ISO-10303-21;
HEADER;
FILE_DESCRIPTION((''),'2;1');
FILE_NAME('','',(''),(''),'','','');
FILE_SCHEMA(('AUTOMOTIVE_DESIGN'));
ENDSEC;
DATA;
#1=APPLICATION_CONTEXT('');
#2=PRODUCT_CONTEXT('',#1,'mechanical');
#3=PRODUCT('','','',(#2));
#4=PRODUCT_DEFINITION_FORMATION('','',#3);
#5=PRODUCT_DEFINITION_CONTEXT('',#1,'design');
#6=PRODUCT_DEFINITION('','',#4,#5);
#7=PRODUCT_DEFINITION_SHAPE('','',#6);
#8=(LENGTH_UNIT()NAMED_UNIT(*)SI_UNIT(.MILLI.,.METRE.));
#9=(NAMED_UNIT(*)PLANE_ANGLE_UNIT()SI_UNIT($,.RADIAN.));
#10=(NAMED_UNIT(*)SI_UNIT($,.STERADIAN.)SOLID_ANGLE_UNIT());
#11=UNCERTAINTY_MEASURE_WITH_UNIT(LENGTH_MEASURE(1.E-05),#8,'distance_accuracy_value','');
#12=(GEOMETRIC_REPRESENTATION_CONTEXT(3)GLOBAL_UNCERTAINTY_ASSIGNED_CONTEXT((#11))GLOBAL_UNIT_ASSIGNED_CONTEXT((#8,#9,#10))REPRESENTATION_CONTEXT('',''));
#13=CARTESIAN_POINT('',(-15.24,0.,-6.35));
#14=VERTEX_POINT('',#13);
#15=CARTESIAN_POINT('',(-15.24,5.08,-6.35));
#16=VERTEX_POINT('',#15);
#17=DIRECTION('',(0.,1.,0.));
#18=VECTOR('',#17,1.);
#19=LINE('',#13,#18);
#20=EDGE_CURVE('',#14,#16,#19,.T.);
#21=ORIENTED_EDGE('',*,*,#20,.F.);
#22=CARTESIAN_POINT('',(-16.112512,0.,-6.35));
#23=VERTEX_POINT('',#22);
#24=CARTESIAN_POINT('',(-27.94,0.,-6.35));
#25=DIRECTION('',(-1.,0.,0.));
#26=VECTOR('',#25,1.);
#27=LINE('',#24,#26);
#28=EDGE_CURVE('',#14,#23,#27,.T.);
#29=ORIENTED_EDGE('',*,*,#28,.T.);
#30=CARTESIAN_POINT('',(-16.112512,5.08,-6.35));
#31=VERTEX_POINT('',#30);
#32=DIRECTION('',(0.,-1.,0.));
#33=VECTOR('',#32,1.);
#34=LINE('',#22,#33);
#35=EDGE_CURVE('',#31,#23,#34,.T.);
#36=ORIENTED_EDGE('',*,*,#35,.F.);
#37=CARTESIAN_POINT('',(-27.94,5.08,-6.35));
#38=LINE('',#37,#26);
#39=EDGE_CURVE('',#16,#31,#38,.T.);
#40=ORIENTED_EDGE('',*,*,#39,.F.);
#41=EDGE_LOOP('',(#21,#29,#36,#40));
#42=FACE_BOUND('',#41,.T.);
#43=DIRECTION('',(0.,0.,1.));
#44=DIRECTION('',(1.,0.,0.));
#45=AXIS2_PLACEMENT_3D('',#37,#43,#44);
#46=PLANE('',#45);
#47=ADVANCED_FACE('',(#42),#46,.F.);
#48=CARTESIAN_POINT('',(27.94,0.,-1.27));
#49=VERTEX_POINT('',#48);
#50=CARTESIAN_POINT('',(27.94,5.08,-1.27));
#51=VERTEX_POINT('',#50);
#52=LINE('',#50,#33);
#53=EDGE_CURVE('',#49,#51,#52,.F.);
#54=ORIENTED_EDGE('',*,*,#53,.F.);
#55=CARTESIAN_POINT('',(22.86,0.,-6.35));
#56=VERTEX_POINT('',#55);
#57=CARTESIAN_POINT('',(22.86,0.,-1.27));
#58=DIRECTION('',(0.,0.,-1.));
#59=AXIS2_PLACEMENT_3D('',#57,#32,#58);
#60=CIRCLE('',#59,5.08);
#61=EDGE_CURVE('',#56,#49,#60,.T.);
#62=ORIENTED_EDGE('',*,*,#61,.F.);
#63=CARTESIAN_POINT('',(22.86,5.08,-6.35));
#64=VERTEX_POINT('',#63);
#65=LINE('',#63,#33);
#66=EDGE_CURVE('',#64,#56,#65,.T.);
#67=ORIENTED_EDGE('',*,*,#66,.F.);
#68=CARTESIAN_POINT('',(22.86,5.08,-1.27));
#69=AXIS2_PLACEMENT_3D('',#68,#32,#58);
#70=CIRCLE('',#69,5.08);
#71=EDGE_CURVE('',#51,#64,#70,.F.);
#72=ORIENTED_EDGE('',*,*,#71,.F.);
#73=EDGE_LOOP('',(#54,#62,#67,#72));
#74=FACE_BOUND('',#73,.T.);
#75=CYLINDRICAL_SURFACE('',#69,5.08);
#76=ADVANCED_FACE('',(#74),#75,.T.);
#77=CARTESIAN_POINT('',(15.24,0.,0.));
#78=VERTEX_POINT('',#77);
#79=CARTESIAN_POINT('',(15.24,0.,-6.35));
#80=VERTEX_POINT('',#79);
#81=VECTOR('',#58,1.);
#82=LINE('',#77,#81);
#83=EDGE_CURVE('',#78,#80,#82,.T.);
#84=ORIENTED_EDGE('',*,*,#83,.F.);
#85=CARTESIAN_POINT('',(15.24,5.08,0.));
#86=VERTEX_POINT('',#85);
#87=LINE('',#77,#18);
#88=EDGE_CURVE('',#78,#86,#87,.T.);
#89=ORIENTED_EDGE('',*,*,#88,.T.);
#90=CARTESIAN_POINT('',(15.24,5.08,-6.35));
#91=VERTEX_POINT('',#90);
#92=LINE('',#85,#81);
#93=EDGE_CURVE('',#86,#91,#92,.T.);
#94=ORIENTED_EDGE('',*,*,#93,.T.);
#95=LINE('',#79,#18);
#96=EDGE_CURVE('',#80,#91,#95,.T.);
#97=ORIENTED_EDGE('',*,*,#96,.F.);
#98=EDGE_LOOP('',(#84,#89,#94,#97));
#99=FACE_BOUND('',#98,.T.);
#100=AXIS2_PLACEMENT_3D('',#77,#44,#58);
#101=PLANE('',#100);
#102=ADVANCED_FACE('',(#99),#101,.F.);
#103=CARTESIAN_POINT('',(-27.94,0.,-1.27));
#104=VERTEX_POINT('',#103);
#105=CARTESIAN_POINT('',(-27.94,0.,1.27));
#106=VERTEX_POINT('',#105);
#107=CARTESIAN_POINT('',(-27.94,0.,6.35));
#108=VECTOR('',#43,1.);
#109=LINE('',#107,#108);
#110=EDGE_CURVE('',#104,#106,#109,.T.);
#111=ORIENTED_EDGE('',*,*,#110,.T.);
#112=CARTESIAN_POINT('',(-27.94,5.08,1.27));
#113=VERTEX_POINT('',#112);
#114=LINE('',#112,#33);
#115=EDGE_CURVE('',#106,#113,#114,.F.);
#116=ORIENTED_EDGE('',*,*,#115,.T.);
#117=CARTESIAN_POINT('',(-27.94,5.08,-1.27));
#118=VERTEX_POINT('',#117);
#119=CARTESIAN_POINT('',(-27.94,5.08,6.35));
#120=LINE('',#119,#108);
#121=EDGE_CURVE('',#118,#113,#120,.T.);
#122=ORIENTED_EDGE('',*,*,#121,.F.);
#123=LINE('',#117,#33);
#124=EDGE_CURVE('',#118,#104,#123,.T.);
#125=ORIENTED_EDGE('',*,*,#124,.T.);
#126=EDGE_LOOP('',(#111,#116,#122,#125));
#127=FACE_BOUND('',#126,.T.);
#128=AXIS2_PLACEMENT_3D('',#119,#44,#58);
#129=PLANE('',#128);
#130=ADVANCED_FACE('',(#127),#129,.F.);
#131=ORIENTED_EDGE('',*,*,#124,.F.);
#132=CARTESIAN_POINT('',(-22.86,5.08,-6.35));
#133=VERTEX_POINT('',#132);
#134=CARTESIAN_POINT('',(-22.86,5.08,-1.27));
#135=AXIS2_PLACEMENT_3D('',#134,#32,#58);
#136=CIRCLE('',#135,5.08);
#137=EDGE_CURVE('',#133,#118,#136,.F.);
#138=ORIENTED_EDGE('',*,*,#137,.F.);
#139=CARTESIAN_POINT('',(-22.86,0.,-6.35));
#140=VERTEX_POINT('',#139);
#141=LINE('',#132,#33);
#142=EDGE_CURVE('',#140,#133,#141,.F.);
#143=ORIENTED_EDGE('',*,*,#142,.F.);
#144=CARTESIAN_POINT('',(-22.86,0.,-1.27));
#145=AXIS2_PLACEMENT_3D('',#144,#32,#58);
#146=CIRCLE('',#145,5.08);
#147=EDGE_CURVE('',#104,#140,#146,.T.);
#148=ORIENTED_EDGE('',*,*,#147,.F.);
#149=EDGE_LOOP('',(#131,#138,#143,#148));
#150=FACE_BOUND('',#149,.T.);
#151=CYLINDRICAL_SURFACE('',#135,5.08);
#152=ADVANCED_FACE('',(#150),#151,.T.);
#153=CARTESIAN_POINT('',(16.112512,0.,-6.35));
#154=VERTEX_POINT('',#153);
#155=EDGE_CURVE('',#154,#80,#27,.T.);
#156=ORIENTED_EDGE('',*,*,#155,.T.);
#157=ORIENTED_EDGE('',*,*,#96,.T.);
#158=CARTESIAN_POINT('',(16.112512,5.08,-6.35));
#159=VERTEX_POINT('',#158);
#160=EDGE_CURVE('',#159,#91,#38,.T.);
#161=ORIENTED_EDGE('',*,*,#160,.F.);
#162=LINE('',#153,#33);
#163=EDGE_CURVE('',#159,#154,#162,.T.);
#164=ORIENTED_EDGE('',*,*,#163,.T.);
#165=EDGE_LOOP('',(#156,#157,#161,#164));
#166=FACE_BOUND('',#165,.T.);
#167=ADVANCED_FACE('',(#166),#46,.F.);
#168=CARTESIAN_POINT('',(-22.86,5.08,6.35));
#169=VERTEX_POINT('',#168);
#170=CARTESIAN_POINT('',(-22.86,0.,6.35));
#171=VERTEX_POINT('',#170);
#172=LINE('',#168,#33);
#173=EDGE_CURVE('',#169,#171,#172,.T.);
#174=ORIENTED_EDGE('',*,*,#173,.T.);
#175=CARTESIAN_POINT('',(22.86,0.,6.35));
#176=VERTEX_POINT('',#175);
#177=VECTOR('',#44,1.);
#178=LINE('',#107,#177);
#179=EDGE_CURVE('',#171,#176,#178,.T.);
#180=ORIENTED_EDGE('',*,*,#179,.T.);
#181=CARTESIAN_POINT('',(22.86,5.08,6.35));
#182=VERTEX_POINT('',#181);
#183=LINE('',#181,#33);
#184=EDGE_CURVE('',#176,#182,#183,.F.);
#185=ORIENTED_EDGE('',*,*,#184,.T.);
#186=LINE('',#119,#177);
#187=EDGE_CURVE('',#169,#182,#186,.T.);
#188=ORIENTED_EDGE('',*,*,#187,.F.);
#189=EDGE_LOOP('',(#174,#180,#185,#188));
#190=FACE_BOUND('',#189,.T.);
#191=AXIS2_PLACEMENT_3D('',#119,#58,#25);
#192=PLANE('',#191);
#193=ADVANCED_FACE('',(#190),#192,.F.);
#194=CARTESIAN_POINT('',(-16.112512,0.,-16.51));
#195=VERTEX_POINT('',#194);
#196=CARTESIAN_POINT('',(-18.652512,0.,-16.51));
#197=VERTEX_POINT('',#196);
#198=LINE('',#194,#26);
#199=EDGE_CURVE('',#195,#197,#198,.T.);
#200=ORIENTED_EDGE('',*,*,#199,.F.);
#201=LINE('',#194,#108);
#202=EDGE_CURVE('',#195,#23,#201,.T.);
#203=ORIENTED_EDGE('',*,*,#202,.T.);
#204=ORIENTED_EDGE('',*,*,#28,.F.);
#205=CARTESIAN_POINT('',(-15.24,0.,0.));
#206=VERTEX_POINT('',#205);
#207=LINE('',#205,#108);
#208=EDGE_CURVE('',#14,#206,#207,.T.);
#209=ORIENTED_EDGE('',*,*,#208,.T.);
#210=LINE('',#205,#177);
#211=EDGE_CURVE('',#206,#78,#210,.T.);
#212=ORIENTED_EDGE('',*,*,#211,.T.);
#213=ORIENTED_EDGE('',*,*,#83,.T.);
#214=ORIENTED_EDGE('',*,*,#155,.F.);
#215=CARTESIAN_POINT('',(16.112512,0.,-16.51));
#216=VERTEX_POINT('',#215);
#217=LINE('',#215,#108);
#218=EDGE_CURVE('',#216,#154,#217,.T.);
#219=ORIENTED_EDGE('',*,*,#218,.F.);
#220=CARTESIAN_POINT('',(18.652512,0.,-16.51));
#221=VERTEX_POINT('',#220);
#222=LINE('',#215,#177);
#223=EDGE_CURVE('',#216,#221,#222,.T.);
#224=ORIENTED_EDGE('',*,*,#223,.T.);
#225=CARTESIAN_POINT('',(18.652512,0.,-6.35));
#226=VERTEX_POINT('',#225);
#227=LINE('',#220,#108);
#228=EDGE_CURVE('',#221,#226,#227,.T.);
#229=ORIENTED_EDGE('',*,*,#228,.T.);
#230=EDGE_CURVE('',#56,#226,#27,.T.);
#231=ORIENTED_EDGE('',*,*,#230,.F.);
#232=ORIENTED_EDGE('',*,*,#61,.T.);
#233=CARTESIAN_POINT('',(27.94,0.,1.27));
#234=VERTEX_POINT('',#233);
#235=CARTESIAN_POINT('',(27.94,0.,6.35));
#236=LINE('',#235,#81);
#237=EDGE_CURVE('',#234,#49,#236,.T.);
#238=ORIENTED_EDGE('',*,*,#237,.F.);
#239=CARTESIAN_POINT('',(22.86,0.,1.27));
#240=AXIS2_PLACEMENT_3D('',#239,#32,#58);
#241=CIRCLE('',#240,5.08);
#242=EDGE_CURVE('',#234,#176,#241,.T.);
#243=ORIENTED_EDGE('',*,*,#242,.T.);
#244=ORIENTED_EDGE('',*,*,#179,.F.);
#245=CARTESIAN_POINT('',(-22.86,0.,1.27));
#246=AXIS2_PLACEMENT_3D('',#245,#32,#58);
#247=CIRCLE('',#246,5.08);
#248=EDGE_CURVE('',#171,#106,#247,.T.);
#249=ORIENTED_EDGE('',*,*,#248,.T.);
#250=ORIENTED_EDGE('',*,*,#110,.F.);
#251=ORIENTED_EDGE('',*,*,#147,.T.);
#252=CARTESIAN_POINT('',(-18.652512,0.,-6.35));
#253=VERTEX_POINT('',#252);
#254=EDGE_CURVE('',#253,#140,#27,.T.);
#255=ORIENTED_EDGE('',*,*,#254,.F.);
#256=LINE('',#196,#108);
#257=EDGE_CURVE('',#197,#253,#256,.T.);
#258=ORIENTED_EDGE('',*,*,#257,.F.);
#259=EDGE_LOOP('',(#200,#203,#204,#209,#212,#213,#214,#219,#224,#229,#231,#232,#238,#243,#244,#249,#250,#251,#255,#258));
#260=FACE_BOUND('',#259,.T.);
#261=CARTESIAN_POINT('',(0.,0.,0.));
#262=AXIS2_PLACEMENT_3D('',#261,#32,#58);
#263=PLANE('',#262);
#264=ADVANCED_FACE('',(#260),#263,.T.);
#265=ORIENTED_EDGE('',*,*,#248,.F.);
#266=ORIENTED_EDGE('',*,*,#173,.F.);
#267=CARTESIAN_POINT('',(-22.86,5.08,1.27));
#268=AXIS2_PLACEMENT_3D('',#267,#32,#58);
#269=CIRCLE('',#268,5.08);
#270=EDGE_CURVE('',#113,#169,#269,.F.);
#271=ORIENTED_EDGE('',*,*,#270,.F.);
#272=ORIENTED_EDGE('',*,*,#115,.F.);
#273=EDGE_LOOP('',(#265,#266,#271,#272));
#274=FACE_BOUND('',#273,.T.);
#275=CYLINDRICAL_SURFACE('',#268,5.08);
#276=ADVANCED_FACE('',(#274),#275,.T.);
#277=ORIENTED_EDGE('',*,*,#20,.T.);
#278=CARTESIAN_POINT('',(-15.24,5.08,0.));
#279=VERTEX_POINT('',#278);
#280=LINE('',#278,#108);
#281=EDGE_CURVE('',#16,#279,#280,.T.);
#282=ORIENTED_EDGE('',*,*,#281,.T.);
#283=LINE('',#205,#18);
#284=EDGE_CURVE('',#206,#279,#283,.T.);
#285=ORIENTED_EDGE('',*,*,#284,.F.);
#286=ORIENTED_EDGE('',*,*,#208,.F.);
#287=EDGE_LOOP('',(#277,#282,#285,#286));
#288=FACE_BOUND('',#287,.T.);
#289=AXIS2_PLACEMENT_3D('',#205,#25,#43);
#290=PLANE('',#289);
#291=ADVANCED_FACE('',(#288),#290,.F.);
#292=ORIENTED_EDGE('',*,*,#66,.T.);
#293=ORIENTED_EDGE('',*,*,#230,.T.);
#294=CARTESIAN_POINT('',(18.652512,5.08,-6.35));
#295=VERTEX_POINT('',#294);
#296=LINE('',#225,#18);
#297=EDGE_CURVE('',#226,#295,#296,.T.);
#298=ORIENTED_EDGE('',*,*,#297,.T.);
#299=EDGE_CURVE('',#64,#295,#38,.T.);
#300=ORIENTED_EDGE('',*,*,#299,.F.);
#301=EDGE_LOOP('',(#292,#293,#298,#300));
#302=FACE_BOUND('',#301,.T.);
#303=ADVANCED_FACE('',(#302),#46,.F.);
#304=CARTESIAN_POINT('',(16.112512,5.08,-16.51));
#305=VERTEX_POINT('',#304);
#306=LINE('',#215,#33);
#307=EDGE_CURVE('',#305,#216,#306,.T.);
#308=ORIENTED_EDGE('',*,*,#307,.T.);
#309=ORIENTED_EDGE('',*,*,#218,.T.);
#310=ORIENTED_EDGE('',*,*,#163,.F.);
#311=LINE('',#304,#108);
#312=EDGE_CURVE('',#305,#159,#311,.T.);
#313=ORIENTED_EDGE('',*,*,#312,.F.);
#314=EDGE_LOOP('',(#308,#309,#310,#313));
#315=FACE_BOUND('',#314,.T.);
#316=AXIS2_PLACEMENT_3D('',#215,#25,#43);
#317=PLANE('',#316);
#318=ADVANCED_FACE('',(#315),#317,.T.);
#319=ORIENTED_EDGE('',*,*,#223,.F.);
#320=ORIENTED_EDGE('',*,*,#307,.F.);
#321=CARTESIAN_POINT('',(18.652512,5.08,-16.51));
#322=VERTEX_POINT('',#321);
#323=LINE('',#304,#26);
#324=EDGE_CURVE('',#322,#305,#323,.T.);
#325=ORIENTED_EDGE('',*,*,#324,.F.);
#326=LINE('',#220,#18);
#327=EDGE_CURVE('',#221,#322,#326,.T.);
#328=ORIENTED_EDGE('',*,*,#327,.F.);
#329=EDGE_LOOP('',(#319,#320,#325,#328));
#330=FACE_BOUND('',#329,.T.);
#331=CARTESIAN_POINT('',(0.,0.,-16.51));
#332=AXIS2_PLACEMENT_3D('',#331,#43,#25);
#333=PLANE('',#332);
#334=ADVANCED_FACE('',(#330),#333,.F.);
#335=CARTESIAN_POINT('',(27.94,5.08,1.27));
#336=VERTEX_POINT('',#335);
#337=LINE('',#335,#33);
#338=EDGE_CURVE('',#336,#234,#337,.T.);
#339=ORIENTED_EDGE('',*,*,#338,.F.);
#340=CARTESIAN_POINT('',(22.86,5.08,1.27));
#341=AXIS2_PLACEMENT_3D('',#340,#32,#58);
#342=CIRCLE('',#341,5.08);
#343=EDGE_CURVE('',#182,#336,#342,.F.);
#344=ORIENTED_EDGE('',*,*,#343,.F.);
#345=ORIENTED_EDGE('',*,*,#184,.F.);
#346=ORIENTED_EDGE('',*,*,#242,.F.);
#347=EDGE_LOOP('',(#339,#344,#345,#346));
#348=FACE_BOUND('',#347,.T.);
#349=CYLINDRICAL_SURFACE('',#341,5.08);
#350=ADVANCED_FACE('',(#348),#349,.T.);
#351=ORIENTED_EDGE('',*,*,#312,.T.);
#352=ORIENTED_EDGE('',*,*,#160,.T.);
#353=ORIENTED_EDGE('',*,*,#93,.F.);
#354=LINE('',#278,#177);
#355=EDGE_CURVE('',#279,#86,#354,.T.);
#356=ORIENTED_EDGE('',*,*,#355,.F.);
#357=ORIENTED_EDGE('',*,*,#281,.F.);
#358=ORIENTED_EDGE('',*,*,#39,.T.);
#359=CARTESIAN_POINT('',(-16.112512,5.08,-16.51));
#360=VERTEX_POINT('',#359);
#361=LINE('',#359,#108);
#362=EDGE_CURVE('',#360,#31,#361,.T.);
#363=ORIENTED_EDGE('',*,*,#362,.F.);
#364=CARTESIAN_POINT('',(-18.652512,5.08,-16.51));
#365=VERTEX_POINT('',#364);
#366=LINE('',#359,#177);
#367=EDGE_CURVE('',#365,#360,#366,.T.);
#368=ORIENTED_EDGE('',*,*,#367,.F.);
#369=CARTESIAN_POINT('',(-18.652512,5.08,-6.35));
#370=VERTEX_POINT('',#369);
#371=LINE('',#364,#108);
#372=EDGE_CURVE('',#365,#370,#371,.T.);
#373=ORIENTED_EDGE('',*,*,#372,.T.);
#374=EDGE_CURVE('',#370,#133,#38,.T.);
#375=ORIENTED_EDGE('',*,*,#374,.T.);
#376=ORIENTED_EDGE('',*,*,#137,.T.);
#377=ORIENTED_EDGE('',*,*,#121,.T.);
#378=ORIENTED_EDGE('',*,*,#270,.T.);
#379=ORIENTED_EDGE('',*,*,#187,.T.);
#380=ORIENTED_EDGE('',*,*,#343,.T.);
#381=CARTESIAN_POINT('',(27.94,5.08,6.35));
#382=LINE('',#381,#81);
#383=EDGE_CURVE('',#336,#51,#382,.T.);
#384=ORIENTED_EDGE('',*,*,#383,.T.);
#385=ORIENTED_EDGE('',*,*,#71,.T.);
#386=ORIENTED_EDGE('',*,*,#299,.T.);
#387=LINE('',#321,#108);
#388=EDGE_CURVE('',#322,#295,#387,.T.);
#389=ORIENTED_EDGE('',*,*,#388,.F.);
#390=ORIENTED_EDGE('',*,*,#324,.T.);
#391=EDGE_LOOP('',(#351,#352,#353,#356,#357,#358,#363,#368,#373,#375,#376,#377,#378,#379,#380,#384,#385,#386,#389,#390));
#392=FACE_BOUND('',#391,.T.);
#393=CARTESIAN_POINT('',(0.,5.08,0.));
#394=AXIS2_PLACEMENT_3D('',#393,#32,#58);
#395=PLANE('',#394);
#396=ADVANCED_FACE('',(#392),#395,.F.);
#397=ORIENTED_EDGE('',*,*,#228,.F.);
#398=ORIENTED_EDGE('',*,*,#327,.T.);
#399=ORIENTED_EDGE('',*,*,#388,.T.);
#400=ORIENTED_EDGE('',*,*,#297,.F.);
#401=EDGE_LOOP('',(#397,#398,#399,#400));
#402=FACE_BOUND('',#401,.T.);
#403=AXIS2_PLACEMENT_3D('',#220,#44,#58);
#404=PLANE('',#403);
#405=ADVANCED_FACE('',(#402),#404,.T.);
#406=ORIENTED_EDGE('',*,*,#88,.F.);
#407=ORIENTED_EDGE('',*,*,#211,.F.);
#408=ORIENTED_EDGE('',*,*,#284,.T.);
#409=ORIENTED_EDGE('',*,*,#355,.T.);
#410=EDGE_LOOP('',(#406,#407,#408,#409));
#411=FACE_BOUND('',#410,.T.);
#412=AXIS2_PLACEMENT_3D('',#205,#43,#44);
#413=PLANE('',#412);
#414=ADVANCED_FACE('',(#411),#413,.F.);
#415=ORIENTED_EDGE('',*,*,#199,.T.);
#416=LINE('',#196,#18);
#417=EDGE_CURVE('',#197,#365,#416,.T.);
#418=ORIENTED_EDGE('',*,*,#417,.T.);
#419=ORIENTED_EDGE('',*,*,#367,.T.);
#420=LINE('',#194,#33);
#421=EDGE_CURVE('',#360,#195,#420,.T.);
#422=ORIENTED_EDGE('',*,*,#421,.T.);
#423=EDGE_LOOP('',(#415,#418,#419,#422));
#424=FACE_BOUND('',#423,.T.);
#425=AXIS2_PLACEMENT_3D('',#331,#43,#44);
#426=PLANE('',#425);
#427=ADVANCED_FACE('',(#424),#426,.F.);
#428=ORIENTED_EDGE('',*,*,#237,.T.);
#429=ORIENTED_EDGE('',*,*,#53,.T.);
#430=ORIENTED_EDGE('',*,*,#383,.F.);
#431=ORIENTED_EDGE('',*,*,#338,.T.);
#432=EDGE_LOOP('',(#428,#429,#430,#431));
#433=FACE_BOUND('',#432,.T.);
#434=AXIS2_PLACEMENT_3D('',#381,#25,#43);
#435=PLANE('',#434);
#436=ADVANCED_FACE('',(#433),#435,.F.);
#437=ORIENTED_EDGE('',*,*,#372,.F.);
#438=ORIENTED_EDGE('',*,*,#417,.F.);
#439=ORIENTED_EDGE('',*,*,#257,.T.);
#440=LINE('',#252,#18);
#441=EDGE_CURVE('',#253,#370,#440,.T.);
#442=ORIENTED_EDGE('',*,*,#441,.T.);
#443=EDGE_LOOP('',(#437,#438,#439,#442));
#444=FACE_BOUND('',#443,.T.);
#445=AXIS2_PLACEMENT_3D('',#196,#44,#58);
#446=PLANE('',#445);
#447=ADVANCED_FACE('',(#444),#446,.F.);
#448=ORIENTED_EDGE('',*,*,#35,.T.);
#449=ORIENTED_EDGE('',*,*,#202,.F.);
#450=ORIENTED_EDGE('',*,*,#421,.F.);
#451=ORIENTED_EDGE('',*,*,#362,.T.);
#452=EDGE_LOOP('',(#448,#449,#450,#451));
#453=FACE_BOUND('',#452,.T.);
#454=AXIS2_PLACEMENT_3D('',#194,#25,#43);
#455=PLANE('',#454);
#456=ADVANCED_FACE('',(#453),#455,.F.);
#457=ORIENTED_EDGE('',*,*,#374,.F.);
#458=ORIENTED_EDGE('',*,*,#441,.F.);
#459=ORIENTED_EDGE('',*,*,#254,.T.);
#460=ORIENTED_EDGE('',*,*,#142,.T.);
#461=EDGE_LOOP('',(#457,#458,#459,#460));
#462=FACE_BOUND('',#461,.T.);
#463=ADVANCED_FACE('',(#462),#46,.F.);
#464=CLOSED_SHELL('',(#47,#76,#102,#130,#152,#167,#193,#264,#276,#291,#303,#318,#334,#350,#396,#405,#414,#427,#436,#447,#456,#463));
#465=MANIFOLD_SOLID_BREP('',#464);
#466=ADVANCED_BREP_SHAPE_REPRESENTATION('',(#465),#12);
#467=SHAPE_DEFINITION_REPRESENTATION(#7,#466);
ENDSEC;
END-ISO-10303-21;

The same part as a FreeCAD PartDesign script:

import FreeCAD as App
import Part
import Sketcher
Q = App.Units.Quantity


def edges_at(feature, points):
    """Names of the edges that pass closest to the given points."""
    edges = feature.Shape.Edges
    near = lambda p: min(range(len(edges)), key=lambda i: edges[i].distToShape(Part.Vertex(*p))[0])
    return sorted({f"Edge{near(p) + 1}" for p in points})


def add_polygon(sketch, points):
    """Adds a closed chain of lines whose ends are joined by coincident constraints."""
    first, n = sketch.GeometryCount, len(points)
    for a, b in zip(points, points[1:] + points[:1]):
        sketch.addGeometry(Part.LineSegment(App.Vector(*a, 0), App.Vector(*b, 0)), False)
    for i in range(n):
        sketch.addConstraint(Sketcher.Constraint("Coincident", first + i, 2, first + (i + 1) % n, 1))

doc = App.newDocument("Part")
params = doc.addObject("Spreadsheet::Sheet", "Params")
for row, (alias, value) in enumerate([
    ("sketch1_width", "2.2 in"),
    ("sketch1_height", "0.5 in"),
    ("pad1_length", "0.2 in"),
    ("sketch2_width", "1.2 in"),
    ("sketch2_height", "0.25 in"),
    ("pocket1_length", "0.2 in"),
    ("fillet_radius", "0.2 in"),
    ("sketch3_width", "0.1 in"),
    ("sketch3_height", "0.2 in"),
    ("pad2_length", "0.4 in"),
], start=1):
    params.set(f"A{row}", alias)
    params.set(f"B{row}", "=" + value)
    params.setAlias(f"B{row}", alias)

body = doc.addObject("PartDesign::Body", "Body")

# Sketch on XZ plane
sketch1 = body.newObject("Sketcher::SketchObject", "Sketch")
sketch1.AttachmentSupport = (doc.getObject("XZ_Plane"), [""])
sketch1.MapMode = "FlatFace"
add_polygon(sketch1, [(-28, -6), (-28, 6), (28, 6), (28, -6)])  # lines 0-3
sketch1.addConstraint([
    Sketcher.Constraint("Vertical", 0),
    Sketcher.Constraint("Horizontal", 1),
    Sketcher.Constraint("Vertical", 2),
    Sketcher.Constraint("Horizontal", 3),
    Sketcher.Constraint("Symmetric", 0, 2, 2, 2, -1, 1),
    Sketcher.Constraint("DistanceX", 1, 1, 1, 2, Q("2.2 in")),
    Sketcher.Constraint("DistanceY", 0, 1, 0, 2, Q("0.5 in")),
])
sketch1.setExpression("Constraints[9]", "Params.sketch1_width")
sketch1.setExpression("Constraints[10]", "Params.sketch1_height")
pad1 = body.newObject("PartDesign::Pad", "Pad")
pad1.Profile = sketch1
pad1.setExpression("Length", "Params.pad1_length")
pad1.Reversed = True

# Sketch on XZ plane
sketch2 = body.newObject("Sketcher::SketchObject", "Sketch001")
sketch2.AttachmentSupport = (doc.getObject("XZ_Plane"), [""])
sketch2.MapMode = "FlatFace"
sketch2.AttachmentOffset = App.Placement(App.Vector(0, 0, -0.2 * 25.4), App.Rotation())
add_polygon(sketch2, [(-15, -6), (-15, 0), (15, 0), (15, -6)])  # lines 0-3
sketch2.addConstraint([
    Sketcher.Constraint("Vertical", 0),
    Sketcher.Constraint("Horizontal", 1),
    Sketcher.Constraint("Vertical", 2),
    Sketcher.Constraint("Horizontal", 3),
    Sketcher.Constraint("Symmetric", 0, 2, 1, 2, -1, 1),
    Sketcher.Constraint("DistanceX", 1, 1, 1, 2, Q("1.2 in")),
    Sketcher.Constraint("DistanceY", 0, 1, 0, 2, Q("0.25 in")),
])
sketch2.setExpression("Constraints[9]", "Params.sketch2_width")
sketch2.setExpression("Constraints[10]", "Params.sketch2_height")
pocket1 = body.newObject("PartDesign::Pocket", "Pocket")
pocket1.Profile = sketch2
pocket1.setExpression("Length", "Params.pocket1_length")
pocket1.Reversed = True
doc.recompute()

fillet = body.newObject("PartDesign::Fillet", "Fillet")
fillet.Base = (pocket1, edges_at(pocket1, [
    (27.94, 2.54, 6.35),
    (-27.94, 2.54, 6.35),
    (-27.94, 2.54, -6.35),
    (27.94, 2.54, -6.35),
]))
fillet.setExpression("Radius", "Params.fillet_radius")

# Sketch on XY plane
sketch3 = body.newObject("Sketcher::SketchObject", "Sketch002")
sketch3.AttachmentSupport = (doc.getObject("XY_Plane"), [""])
sketch3.MapMode = "FlatFace"
sketch3.AttachmentOffset = App.Placement(App.Vector(0, 0, -0.25 * 25.4), App.Rotation())
add_polygon(sketch3, [(-16.1, 5.1), (-16.1, 0), (-18.7, 0), (-18.7, 5.1)])  # lines 0-3
sketch3.addConstraint([
    Sketcher.Constraint("Vertical", 0),
    Sketcher.Constraint("Horizontal", 1),
    Sketcher.Constraint("Vertical", 2),
    Sketcher.Constraint("Horizontal", 3),
    Sketcher.Constraint("PointOnObject", 0, 2, -1),
    Sketcher.Constraint("DistanceX", 1, 2, 1, 1, Q("0.1 in")),
    Sketcher.Constraint("DistanceY", 0, 2, 0, 1, Q("0.2 in")),
    Sketcher.Constraint("DistanceX", 0, 2, -1, 1, 16.112512),
])
sketch3.setExpression("Constraints[9]", "Params.sketch3_width")
sketch3.setExpression("Constraints[10]", "Params.sketch3_height")
pad2 = body.newObject("PartDesign::Pad", "Pad001")
pad2.Profile = sketch3
pad2.setExpression("Length", "Params.pad2_length")
pad2.Reversed = True
doc.recompute()

mirrored = body.newObject("PartDesign::Mirrored", "Mirrored")
mirrored.Originals = [pad2]
mirrored.MirrorPlane = (doc.getObject("YZ_Plane"), [""])
body.Tip = mirrored

doc.recompute()
